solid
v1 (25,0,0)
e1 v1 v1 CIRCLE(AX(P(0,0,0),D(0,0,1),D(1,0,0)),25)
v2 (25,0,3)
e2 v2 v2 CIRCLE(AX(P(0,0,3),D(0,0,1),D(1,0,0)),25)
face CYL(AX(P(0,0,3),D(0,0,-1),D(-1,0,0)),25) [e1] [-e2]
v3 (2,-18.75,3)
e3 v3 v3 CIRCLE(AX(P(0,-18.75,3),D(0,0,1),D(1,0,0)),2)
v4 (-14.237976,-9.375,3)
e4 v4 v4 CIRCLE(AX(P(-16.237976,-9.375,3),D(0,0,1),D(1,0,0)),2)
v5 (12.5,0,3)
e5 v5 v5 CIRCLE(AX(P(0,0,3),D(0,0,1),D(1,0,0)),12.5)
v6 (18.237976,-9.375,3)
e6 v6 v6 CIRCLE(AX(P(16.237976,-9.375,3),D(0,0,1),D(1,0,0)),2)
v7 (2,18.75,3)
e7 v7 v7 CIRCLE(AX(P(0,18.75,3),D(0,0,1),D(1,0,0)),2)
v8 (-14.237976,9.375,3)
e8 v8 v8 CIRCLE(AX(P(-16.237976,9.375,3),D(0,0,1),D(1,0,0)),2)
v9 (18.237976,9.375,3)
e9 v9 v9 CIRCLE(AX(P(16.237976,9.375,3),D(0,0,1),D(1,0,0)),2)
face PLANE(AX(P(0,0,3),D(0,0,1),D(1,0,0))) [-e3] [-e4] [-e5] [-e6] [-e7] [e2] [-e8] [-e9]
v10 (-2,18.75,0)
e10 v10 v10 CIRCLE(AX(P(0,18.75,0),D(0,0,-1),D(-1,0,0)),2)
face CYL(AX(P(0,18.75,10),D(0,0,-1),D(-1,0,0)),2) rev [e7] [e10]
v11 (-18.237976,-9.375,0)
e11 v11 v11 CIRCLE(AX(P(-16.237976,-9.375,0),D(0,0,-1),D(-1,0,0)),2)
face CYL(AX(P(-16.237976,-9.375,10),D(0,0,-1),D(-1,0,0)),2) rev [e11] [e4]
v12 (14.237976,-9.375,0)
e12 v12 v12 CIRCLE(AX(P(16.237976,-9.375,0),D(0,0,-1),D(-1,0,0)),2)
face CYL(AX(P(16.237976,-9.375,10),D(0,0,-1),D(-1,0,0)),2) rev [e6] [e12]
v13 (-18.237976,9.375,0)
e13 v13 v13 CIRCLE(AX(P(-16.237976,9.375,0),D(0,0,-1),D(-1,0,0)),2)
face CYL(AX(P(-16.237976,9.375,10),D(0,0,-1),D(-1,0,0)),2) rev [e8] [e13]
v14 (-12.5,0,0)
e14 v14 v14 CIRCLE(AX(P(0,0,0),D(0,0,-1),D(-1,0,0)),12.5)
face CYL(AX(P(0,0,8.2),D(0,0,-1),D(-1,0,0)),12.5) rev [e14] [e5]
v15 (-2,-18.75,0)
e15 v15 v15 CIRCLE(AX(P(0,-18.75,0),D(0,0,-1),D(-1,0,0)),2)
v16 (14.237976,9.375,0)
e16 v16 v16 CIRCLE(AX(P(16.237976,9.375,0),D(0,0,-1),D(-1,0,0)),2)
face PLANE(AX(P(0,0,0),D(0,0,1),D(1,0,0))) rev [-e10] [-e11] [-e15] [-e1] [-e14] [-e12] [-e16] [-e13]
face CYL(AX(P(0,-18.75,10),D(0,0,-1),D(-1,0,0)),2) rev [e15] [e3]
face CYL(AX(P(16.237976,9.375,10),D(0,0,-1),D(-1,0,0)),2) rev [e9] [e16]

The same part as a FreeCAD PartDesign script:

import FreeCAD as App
import Part
import Sketcher
Q = App.Units.Quantity

doc = App.newDocument("Part")
body = doc.addObject("PartDesign::Body", "Body")

# Sketch on XY plane
sketch1 = body.newObject("Sketcher::SketchObject", "Sketch")
sketch1.AttachmentSupport = (doc.getObject("XY_Plane"), [""])
sketch1.MapMode = "FlatFace"
sketch1.addGeometry(Part.Circle(App.Vector(0, 0, 0), App.Vector(0, 0, 1), 25), False)
sketch1.addConstraint([
    Sketcher.Constraint("Coincident", 0, 3, -1, 1),
    Sketcher.Constraint("Diameter", 0, Q("50 mm")),
])
pad1 = body.newObject("PartDesign::Pad", "Pad")
pad1.Profile = sketch1
pad1.Length = 3

# Sketch on XY plane
sketch2 = body.newObject("Sketcher::SketchObject", "Sketch001")
sketch2.AttachmentSupport = (doc.getObject("XY_Plane"), [""])
sketch2.MapMode = "FlatFace"
sketch2.addGeometry(Part.Circle(App.Vector(0, 0, 0), App.Vector(0, 0, 1), 12.5), False)
sketch2.addConstraint([
    Sketcher.Constraint("Coincident", 0, 3, -1, 1),
    Sketcher.Constraint("Diameter", 0, Q("25 mm")),
])
pocket1 = body.newObject("PartDesign::Pocket", "Pocket")
pocket1.Profile = sketch2
pocket1.Length = 8.2
pocket1.Reversed = True

# Sketch on XY plane
sketch3 = body.newObject("Sketcher::SketchObject", "Sketch002")
sketch3.AttachmentSupport = (doc.getObject("XY_Plane"), [""])
sketch3.MapMode = "FlatFace"
sketch3.addGeometry([
    Part.Circle(App.Vector(0, 18.75, 0), App.Vector(0, 0, 1), 2),  # 0
    Part.Circle(App.Vector(-16.237976, 9.375, 0), App.Vector(0, 0, 1), 2),  # 1
    Part.Circle(App.Vector(-16.237976, -9.375, 0), App.Vector(0, 0, 1), 2),  # 2
    Part.Circle(App.Vector(0, -18.75, 0), App.Vector(0, 0, 1), 2),  # 3
    Part.Circle(App.Vector(16.237976, -9.375, 0), App.Vector(0, 0, 1), 2),  # 4
    Part.Circle(App.Vector(16.237976, 9.375, 0), App.Vector(0, 0, 1), 2),  # 5
], False)
sketch3.addConstraint([
    Sketcher.Constraint("Equal", 0, 1),
    Sketcher.Constraint("Equal", 1, 2),
    Sketcher.Constraint("Equal", 2, 3),
    Sketcher.Constraint("Equal", 3, 4),
    Sketcher.Constraint("Equal", 4, 5),
    Sketcher.Constraint("Symmetric", 0, 3, 3, 3, -1, 1),
    Sketcher.Constraint("Symmetric", 1, 3, 4, 3, -1, 1),
    Sketcher.Constraint("Symmetric", 2, 3, 5, 3, -1, 1),
    Sketcher.Constraint("Symmetric", 2, 3, 4, 3, -2),
    Sketcher.Constraint("PointOnObject", 0, 3, -2),
    Sketcher.Constraint("Diameter", 0, Q("4 mm")),
    Sketcher.Constraint("DistanceY", 3, 3, 0, 3, Q("37.5 mm")),
    Sketcher.Constraint("DistanceY", 2, 3, 1, 3, Q("18.75 mm")),
    Sketcher.Constraint("DistanceX", 1, 3, -1, 1, Q("16.237976 mm")),
])
pocket2 = body.newObject("PartDesign::Pocket", "Pocket001")
pocket2.Profile = sketch3
pocket2.Length = 10
pocket2.Reversed = True

doc.recompute()
